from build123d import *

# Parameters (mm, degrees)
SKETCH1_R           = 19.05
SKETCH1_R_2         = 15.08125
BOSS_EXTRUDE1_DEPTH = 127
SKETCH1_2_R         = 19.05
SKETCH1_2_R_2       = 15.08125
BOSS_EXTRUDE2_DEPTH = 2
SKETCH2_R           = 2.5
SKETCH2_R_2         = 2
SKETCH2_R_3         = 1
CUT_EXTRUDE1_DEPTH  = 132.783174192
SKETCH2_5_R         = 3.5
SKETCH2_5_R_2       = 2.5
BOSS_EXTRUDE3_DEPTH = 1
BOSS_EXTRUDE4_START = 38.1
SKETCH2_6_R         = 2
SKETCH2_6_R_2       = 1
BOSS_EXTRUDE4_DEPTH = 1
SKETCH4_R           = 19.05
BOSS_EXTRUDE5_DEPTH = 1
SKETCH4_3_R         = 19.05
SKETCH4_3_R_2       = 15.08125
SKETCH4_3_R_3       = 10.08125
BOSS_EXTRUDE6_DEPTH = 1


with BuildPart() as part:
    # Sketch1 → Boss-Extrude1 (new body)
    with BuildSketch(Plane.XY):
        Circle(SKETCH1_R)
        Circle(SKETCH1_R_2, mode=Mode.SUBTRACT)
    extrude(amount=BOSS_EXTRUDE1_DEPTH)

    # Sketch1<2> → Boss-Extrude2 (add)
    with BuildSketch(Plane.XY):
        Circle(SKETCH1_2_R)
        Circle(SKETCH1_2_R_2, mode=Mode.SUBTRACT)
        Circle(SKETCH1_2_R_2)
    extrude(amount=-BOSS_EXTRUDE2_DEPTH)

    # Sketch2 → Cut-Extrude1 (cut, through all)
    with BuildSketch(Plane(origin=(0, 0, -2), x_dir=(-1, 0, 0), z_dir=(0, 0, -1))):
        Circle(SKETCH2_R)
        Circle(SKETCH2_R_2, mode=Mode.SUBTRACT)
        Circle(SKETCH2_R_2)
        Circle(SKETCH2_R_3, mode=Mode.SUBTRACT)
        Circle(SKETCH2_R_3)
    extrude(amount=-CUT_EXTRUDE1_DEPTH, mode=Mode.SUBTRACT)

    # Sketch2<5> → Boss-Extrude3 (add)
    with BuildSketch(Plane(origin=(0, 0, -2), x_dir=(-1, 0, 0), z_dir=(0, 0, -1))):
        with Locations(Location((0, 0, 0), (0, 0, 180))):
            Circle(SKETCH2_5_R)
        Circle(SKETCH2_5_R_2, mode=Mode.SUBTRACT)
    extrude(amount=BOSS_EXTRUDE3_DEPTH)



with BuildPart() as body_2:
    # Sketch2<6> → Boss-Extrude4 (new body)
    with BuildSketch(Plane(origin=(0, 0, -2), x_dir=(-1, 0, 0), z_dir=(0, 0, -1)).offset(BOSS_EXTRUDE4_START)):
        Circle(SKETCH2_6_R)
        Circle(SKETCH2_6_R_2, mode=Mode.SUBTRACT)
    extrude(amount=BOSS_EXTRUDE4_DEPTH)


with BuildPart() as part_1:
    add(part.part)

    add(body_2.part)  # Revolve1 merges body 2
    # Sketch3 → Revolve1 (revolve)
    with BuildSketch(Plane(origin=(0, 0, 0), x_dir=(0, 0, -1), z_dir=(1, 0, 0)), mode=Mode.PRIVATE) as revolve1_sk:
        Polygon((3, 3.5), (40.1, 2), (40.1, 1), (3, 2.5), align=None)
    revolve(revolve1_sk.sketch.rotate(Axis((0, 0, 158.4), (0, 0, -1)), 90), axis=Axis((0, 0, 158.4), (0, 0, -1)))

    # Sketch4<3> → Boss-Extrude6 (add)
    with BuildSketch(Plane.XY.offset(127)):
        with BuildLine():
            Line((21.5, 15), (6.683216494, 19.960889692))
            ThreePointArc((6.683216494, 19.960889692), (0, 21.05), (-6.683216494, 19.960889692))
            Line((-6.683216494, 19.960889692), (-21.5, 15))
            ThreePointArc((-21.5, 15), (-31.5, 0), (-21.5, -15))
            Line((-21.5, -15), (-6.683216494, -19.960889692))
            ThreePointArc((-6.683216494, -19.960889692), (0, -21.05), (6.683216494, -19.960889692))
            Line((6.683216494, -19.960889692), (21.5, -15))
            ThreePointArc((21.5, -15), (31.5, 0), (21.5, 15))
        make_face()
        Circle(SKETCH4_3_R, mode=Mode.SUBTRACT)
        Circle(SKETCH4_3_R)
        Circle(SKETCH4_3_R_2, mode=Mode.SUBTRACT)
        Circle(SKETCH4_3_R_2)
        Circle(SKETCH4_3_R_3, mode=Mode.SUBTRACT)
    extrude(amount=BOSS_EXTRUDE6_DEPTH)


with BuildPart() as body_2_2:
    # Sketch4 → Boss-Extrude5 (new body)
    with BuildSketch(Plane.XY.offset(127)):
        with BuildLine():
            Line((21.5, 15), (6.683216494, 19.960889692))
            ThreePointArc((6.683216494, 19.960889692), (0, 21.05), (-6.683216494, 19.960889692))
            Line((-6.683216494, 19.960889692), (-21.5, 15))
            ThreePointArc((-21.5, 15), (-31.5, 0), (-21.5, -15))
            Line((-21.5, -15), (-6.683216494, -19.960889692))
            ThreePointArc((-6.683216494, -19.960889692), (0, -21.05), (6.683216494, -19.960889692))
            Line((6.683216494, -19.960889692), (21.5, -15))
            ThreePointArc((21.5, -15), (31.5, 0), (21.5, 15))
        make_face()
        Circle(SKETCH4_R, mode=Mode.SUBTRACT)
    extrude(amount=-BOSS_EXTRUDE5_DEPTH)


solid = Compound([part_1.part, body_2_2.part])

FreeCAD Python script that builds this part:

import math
import FreeCAD as App
import Part
import Sketcher
from FreeCAD import Vector

doc = App.newDocument("Part")
body = doc.addObject("PartDesign::Body", "Body")

sketch1 = doc.addObject("Sketcher::SketchObject", "Sketch")
body.addObject(sketch1)
sketch1.AttachmentSupport = (doc.XY_Plane, [""])
sketch1.MapMode = "FlatFace"
sketch1.addGeometry(Part.Circle(Vector(0, 0, 0), Vector(0, 0, 1), 19.05), False)
sketch1.addGeometry(Part.Circle(Vector(0, 0, 0), Vector(0, 0, 1), 15.08125), False)
sketch1.addConstraint(Sketcher.Constraint("Coincident", 0, 3, -1, 1))
sketch1.addConstraint(Sketcher.Constraint("Coincident", 1, 3, -1, 1))
sketch1.addConstraint(Sketcher.Constraint("Diameter", 0, 38.1))
sketch1.addConstraint(Sketcher.Constraint("Diameter", 1, 30.1625))
pad1 = doc.addObject("PartDesign::Pad", "Pad")
body.addObject(pad1)
pad1.Profile = sketch1
pad1.Length = 127

sketch2 = doc.addObject("Sketcher::SketchObject", "Sketch001")
body.addObject(sketch2)
sketch2.AttachmentSupport = (doc.XY_Plane, [""])
sketch2.MapMode = "FlatFace"
sketch2.addGeometry(Part.Circle(Vector(0, 0, 0), Vector(0, 0, 1), 19.05), False)
sketch2.addConstraint(Sketcher.Constraint("Coincident", 0, 3, -1, 1))
sketch2.addConstraint(Sketcher.Constraint("Diameter", 0, 38.1))
pad2 = doc.addObject("PartDesign::Pad", "Pad001")
body.addObject(pad2)
pad2.Profile = sketch2
pad2.Length = 2
pad2.Reversed = True

sketch3 = doc.addObject("Sketcher::SketchObject", "Sketch002")
body.addObject(sketch3)
sketch3.AttachmentSupport = (doc.XY_Plane, [""])
sketch3.MapMode = "FlatFace"
sketch3.AttachmentOffset = App.Placement(Vector(0, 0, -2), App.Rotation())
sketch3.addGeometry(Part.Circle(Vector(0, 0, 0), Vector(0, 0, 1), 2.5), False)
sketch3.addConstraint(Sketcher.Constraint("Coincident", 0, 3, -1, 1))
sketch3.addConstraint(Sketcher.Constraint("Diameter", 0, 5.0))
pocket1 = doc.addObject("PartDesign::Pocket", "Pocket")
body.addObject(pocket1)
pocket1.Profile = sketch3
pocket1.Type = "ThroughAll"
pocket1.Reversed = True

sketch4 = doc.addObject("Sketcher::SketchObject", "Sketch003")
body.addObject(sketch4)
sketch4.AttachmentSupport = (doc.XY_Plane, [""])
sketch4.MapMode = "FlatFace"
sketch4.AttachmentOffset = App.Placement(Vector(0, 0, -2), App.Rotation())
sketch4.addGeometry(Part.Circle(Vector(0, 0, 0), Vector(0, 0, 1), 3.5), False)
sketch4.addGeometry(Part.Circle(Vector(0, 0, 0), Vector(0, 0, 1), 2.5), False)
sketch4.addConstraint(Sketcher.Constraint("Coincident", 0, 3, -1, 1))
sketch4.addConstraint(Sketcher.Constraint("Coincident", 1, 3, -1, 1))
sketch4.addConstraint(Sketcher.Constraint("Diameter", 0, 7.0))
sketch4.addConstraint(Sketcher.Constraint("Diameter", 1, 5.0))
pad3 = doc.addObject("PartDesign::Pad", "Pad002")
body.addObject(pad3)
pad3.Profile = sketch4
pad3.Length = 1
pad3.Reversed = True
body2 = doc.addObject("PartDesign::Body", "Body001")

sketch5 = doc.addObject("Sketcher::SketchObject", "Sketch004")
body2.addObject(sketch5)
sketch5.AttachmentSupport = (doc.getObject("XY_Plane001"), [""])
sketch5.MapMode = "FlatFace"
sketch5.AttachmentOffset = App.Placement(Vector(0, 0, -40.1), App.Rotation())
sketch5.addGeometry(Part.Circle(Vector(0, 0, 0), Vector(0, 0, 1), 2), False)
sketch5.addGeometry(Part.Circle(Vector(0, 0, 0), Vector(0, 0, 1), 1), False)
sketch5.addConstraint(Sketcher.Constraint("Coincident", 0, 3, -1, 1))
sketch5.addConstraint(Sketcher.Constraint("Coincident", 1, 3, -1, 1))
sketch5.addConstraint(Sketcher.Constraint("Diameter", 0, 4.0))
sketch5.addConstraint(Sketcher.Constraint("Diameter", 1, 2.0))
pad4 = doc.addObject("PartDesign::Pad", "Pad003")
body2.addObject(pad4)
pad4.Profile = sketch5
pad4.Length = 1
pad4.Reversed = True
body.AllowCompound = True
doc.recompute()

boolean = doc.addObject("PartDesign::Boolean", "Boolean")
body.addObject(boolean)
boolean.Type = "Fuse"
boolean.addObjects([body2])

sketch6 = doc.addObject("Sketcher::SketchObject", "Sketch005")
body.addObject(sketch6)
sketch6.AttachmentSupport = (doc.YZ_Plane, [""])
sketch6.MapMode = "FlatFace"
sketch6.addGeometry(Part.LineSegment(Vector(2, -40.1, 0), Vector(3.5, -3, 0)), False)
sketch6.addGeometry(Part.LineSegment(Vector(3.5, -3, 0), Vector(2.5, -3, 0)), False)
sketch6.addGeometry(Part.LineSegment(Vector(2.5, -3, 0), Vector(1, -40.1, 0)), False)
sketch6.addGeometry(Part.LineSegment(Vector(1, -40.1, 0), Vector(2, -40.1, 0)), False)
sketch6.addConstraint(Sketcher.Constraint("Coincident", 0, 2, 1, 1))
sketch6.addConstraint(Sketcher.Constraint("Coincident", 1, 2, 2, 1))
sketch6.addConstraint(Sketcher.Constraint("Coincident", 2, 2, 3, 1))
sketch6.addConstraint(Sketcher.Constraint("Coincident", 3, 2, 0, 1))
sketch6.addConstraint(Sketcher.Constraint("Horizontal", 1))
sketch6.addConstraint(Sketcher.Constraint("Horizontal", 3))
sketch6.addConstraint(Sketcher.Constraint("Parallel", 0, 2))
sketch6.addConstraint(Sketcher.Constraint("DistanceX", 1, 2, 1, 1, 1.0))
sketch6.addConstraint(Sketcher.Constraint("DistanceY", 0, 2, -1, 1, 3.0))
sketch6.addConstraint(Sketcher.Constraint("DistanceX", -1, 1, 2, 2, 1.0))
sketch6.addConstraint(Sketcher.Constraint("DistanceX", -1, 1, 0, 2, 3.5))
sketch6.addConstraint(Sketcher.Constraint("DistanceY", 2, 2, -1, 1, 40.1))
revolution = doc.addObject("PartDesign::Revolution", "Revolution")
body.addObject(revolution)
revolution.Profile = sketch6
revolution.ReferenceAxis = (sketch6, ["V_Axis"])
revolution.Angle = 360

sketch7 = doc.addObject("Sketcher::SketchObject", "Sketch006")
body.addObject(sketch7)
sketch7.AttachmentSupport = (doc.XY_Plane, [""])
sketch7.MapMode = "FlatFace"
sketch7.AttachmentOffset = App.Placement(Vector(0, 0, 127), App.Rotation())
sketch7.addGeometry(Part.LineSegment(Vector(21.5, 15, 0), Vector(6.683216, 19.96089, 0)), False)
sketch7.addGeometry(Part.ArcOfCircle(Part.Circle(Vector(0, 0, 0), Vector(0, 0, 1), 21.05), math.radians(71.488652), math.radians(108.511348)), False)
sketch7.addGeometry(Part.LineSegment(Vector(-6.683216, 19.96089, 0), Vector(-21.5, 15, 0)), False)
sketch7.addGeometry(Part.ArcOfCircle(Part.Circle(Vector(-15.25, 0, 0), Vector(0, 0, 1), 16.25), math.radians(112.619865), math.radians(247.380135)), False)
sketch7.addGeometry(Part.LineSegment(Vector(-21.5, -15, 0), Vector(-6.683216, -19.96089, 0)), False)
sketch7.addGeometry(Part.ArcOfCircle(Part.Circle(Vector(0, 0, 0), Vector(0, 0, 1), 21.05), math.radians(-108.511348), math.radians(-71.488652)), False)
sketch7.addGeometry(Part.LineSegment(Vector(6.683216, -19.96089, 0), Vector(21.5, -15, 0)), False)
sketch7.addGeometry(Part.ArcOfCircle(Part.Circle(Vector(15.25, 0, 0), Vector(0, 0, 1), 16.25), math.radians(-67.380135), math.radians(67.380135)), False)
sketch7.addGeometry(Part.Circle(Vector(0, 0, 0), Vector(0, 0, 1), 10.08125), False)
sketch7.addConstraint(Sketcher.Constraint("Tangent", 0, 2, 1, 1))
sketch7.addConstraint(Sketcher.Constraint("Tangent", 1, 2, 2, 1))
sketch7.addConstraint(Sketcher.Constraint("Coincident", 2, 2, 3, 1))
sketch7.addConstraint(Sketcher.Constraint("Coincident", 3, 2, 4, 1))
sketch7.addConstraint(Sketcher.Constraint("Tangent", 4, 2, 5, 1))
sketch7.addConstraint(Sketcher.Constraint("Tangent", 5, 2, 6, 1))
sketch7.addConstraint(Sketcher.Constraint("Coincident", 6, 2, 7, 1))
sketch7.addConstraint(Sketcher.Constraint("Coincident", 7, 2, 0, 1))
sketch7.addConstraint(Sketcher.Constraint("Coincident", 1, 3, -1, 1))
sketch7.addConstraint(Sketcher.Constraint("Coincident", 5, 3, -1, 1))
sketch7.addConstraint(Sketcher.Constraint("Coincident", 8, 3, -1, 1))
sketch7.addConstraint(Sketcher.Constraint("Equal", 1, 5))
sketch7.addConstraint(Sketcher.Constraint("Equal", 3, 7))
sketch7.addConstraint(Sketcher.Constraint("Symmetric", 3, 3, 7, 3, -1, 1))
sketch7.addConstraint(Sketcher.Constraint("Symmetric", 3, 2, 6, 2, -2))
sketch7.addConstraint(Sketcher.Constraint("Parallel", 0, 4))
sketch7.addConstraint(Sketcher.Constraint("Parallel", 2, 6))
sketch7.addConstraint(Sketcher.Constraint("Radius", 1, 21.05))
sketch7.addConstraint(Sketcher.Constraint("Radius", 3, 16.25))
sketch7.addConstraint(Sketcher.Constraint("DistanceY", -1, 1, 2, 2, 15.0))
sketch7.addConstraint(Sketcher.Constraint("Diameter", 8, 20.1625))
sketch7.addConstraint(Sketcher.Constraint("DistanceX", 2, 2, -1, 1, 21.5))
pad5 = doc.addObject("PartDesign::Pad", "Pad004")
body.addObject(pad5)
pad5.Profile = sketch7
pad5.Length = 1
body3 = doc.addObject("PartDesign::Body", "Body002")

sketch8 = doc.addObject("Sketcher::SketchObject", "Sketch007")
body3.addObject(sketch8)
sketch8.AttachmentSupport = (doc.getObject("XY_Plane002"), [""])
sketch8.MapMode = "FlatFace"
sketch8.AttachmentOffset = App.Placement(Vector(0, 0, 127), App.Rotation())
sketch8.addGeometry(Part.LineSegment(Vector(21.5, 15, 0), Vector(6.683216, 19.96089, 0)), False)
sketch8.addGeometry(Part.ArcOfCircle(Part.Circle(Vector(0, 0, 0), Vector(0, 0, 1), 21.05), math.radians(71.488652), math.radians(108.511348)), False)
sketch8.addGeometry(Part.LineSegment(Vector(-6.683216, 19.96089, 0), Vector(-21.5, 15, 0)), False)
sketch8.addGeometry(Part.ArcOfCircle(Part.Circle(Vector(-15.25, 0, 0), Vector(0, 0, 1), 16.25), math.radians(112.619865), math.radians(247.380135)), False)
sketch8.addGeometry(Part.LineSegment(Vector(-21.5, -15, 0), Vector(-6.683216, -19.96089, 0)), False)
sketch8.addGeometry(Part.ArcOfCircle(Part.Circle(Vector(0, 0, 0), Vector(0, 0, 1), 21.05), math.radians(-108.511348), math.radians(-71.488652)), False)
sketch8.addGeometry(Part.LineSegment(Vector(6.683216, -19.96089, 0), Vector(21.5, -15, 0)), False)
sketch8.addGeometry(Part.ArcOfCircle(Part.Circle(Vector(15.25, 0, 0), Vector(0, 0, 1), 16.25), math.radians(-67.380135), math.radians(67.380135)), False)
sketch8.addGeometry(Part.Circle(Vector(0, 0, 0), Vector(0, 0, 1), 19.05), False)
sketch8.addConstraint(Sketcher.Constraint("Tangent", 0, 2, 1, 1))
sketch8.addConstraint(Sketcher.Constraint("Tangent", 1, 2, 2, 1))
sketch8.addConstraint(Sketcher.Constraint("Coincident", 2, 2, 3, 1))
sketch8.addConstraint(Sketcher.Constraint("Coincident", 3, 2, 4, 1))
sketch8.addConstraint(Sketcher.Constraint("Tangent", 4, 2, 5, 1))
sketch8.addConstraint(Sketcher.Constraint("Tangent", 5, 2, 6, 1))
sketch8.addConstraint(Sketcher.Constraint("Coincident", 6, 2, 7, 1))
sketch8.addConstraint(Sketcher.Constraint("Coincident", 7, 2, 0, 1))
sketch8.addConstraint(Sketcher.Constraint("Coincident", 1, 3, -1, 1))
sketch8.addConstraint(Sketcher.Constraint("Coincident", 5, 3, -1, 1))
sketch8.addConstraint(Sketcher.Constraint("Coincident", 8, 3, -1, 1))
sketch8.addConstraint(Sketcher.Constraint("Equal", 1, 5))
sketch8.addConstraint(Sketcher.Constraint("Equal", 3, 7))
sketch8.addConstraint(Sketcher.Constraint("Symmetric", 3, 3, 7, 3, -1, 1))
sketch8.addConstraint(Sketcher.Constraint("Symmetric", 3, 2, 6, 2, -2))
sketch8.addConstraint(Sketcher.Constraint("Parallel", 0, 4))
sketch8.addConstraint(Sketcher.Constraint("Parallel", 2, 6))
sketch8.addConstraint(Sketcher.Constraint("Diameter", 8, 38.1))
sketch8.addConstraint(Sketcher.Constraint("Radius", 1, 21.05))
sketch8.addConstraint(Sketcher.Constraint("Radius", 3, 16.25))
sketch8.addConstraint(Sketcher.Constraint("DistanceY", -1, 1, 2, 2, 15.0))
sketch8.addConstraint(Sketcher.Constraint("DistanceX", 2, 2, -1, 1, 21.5))
pad6 = doc.addObject("PartDesign::Pad", "Pad005")
body3.addObject(pad6)
pad6.Profile = sketch8
pad6.Length = 1
pad6.Reversed = True

doc.recompute()
